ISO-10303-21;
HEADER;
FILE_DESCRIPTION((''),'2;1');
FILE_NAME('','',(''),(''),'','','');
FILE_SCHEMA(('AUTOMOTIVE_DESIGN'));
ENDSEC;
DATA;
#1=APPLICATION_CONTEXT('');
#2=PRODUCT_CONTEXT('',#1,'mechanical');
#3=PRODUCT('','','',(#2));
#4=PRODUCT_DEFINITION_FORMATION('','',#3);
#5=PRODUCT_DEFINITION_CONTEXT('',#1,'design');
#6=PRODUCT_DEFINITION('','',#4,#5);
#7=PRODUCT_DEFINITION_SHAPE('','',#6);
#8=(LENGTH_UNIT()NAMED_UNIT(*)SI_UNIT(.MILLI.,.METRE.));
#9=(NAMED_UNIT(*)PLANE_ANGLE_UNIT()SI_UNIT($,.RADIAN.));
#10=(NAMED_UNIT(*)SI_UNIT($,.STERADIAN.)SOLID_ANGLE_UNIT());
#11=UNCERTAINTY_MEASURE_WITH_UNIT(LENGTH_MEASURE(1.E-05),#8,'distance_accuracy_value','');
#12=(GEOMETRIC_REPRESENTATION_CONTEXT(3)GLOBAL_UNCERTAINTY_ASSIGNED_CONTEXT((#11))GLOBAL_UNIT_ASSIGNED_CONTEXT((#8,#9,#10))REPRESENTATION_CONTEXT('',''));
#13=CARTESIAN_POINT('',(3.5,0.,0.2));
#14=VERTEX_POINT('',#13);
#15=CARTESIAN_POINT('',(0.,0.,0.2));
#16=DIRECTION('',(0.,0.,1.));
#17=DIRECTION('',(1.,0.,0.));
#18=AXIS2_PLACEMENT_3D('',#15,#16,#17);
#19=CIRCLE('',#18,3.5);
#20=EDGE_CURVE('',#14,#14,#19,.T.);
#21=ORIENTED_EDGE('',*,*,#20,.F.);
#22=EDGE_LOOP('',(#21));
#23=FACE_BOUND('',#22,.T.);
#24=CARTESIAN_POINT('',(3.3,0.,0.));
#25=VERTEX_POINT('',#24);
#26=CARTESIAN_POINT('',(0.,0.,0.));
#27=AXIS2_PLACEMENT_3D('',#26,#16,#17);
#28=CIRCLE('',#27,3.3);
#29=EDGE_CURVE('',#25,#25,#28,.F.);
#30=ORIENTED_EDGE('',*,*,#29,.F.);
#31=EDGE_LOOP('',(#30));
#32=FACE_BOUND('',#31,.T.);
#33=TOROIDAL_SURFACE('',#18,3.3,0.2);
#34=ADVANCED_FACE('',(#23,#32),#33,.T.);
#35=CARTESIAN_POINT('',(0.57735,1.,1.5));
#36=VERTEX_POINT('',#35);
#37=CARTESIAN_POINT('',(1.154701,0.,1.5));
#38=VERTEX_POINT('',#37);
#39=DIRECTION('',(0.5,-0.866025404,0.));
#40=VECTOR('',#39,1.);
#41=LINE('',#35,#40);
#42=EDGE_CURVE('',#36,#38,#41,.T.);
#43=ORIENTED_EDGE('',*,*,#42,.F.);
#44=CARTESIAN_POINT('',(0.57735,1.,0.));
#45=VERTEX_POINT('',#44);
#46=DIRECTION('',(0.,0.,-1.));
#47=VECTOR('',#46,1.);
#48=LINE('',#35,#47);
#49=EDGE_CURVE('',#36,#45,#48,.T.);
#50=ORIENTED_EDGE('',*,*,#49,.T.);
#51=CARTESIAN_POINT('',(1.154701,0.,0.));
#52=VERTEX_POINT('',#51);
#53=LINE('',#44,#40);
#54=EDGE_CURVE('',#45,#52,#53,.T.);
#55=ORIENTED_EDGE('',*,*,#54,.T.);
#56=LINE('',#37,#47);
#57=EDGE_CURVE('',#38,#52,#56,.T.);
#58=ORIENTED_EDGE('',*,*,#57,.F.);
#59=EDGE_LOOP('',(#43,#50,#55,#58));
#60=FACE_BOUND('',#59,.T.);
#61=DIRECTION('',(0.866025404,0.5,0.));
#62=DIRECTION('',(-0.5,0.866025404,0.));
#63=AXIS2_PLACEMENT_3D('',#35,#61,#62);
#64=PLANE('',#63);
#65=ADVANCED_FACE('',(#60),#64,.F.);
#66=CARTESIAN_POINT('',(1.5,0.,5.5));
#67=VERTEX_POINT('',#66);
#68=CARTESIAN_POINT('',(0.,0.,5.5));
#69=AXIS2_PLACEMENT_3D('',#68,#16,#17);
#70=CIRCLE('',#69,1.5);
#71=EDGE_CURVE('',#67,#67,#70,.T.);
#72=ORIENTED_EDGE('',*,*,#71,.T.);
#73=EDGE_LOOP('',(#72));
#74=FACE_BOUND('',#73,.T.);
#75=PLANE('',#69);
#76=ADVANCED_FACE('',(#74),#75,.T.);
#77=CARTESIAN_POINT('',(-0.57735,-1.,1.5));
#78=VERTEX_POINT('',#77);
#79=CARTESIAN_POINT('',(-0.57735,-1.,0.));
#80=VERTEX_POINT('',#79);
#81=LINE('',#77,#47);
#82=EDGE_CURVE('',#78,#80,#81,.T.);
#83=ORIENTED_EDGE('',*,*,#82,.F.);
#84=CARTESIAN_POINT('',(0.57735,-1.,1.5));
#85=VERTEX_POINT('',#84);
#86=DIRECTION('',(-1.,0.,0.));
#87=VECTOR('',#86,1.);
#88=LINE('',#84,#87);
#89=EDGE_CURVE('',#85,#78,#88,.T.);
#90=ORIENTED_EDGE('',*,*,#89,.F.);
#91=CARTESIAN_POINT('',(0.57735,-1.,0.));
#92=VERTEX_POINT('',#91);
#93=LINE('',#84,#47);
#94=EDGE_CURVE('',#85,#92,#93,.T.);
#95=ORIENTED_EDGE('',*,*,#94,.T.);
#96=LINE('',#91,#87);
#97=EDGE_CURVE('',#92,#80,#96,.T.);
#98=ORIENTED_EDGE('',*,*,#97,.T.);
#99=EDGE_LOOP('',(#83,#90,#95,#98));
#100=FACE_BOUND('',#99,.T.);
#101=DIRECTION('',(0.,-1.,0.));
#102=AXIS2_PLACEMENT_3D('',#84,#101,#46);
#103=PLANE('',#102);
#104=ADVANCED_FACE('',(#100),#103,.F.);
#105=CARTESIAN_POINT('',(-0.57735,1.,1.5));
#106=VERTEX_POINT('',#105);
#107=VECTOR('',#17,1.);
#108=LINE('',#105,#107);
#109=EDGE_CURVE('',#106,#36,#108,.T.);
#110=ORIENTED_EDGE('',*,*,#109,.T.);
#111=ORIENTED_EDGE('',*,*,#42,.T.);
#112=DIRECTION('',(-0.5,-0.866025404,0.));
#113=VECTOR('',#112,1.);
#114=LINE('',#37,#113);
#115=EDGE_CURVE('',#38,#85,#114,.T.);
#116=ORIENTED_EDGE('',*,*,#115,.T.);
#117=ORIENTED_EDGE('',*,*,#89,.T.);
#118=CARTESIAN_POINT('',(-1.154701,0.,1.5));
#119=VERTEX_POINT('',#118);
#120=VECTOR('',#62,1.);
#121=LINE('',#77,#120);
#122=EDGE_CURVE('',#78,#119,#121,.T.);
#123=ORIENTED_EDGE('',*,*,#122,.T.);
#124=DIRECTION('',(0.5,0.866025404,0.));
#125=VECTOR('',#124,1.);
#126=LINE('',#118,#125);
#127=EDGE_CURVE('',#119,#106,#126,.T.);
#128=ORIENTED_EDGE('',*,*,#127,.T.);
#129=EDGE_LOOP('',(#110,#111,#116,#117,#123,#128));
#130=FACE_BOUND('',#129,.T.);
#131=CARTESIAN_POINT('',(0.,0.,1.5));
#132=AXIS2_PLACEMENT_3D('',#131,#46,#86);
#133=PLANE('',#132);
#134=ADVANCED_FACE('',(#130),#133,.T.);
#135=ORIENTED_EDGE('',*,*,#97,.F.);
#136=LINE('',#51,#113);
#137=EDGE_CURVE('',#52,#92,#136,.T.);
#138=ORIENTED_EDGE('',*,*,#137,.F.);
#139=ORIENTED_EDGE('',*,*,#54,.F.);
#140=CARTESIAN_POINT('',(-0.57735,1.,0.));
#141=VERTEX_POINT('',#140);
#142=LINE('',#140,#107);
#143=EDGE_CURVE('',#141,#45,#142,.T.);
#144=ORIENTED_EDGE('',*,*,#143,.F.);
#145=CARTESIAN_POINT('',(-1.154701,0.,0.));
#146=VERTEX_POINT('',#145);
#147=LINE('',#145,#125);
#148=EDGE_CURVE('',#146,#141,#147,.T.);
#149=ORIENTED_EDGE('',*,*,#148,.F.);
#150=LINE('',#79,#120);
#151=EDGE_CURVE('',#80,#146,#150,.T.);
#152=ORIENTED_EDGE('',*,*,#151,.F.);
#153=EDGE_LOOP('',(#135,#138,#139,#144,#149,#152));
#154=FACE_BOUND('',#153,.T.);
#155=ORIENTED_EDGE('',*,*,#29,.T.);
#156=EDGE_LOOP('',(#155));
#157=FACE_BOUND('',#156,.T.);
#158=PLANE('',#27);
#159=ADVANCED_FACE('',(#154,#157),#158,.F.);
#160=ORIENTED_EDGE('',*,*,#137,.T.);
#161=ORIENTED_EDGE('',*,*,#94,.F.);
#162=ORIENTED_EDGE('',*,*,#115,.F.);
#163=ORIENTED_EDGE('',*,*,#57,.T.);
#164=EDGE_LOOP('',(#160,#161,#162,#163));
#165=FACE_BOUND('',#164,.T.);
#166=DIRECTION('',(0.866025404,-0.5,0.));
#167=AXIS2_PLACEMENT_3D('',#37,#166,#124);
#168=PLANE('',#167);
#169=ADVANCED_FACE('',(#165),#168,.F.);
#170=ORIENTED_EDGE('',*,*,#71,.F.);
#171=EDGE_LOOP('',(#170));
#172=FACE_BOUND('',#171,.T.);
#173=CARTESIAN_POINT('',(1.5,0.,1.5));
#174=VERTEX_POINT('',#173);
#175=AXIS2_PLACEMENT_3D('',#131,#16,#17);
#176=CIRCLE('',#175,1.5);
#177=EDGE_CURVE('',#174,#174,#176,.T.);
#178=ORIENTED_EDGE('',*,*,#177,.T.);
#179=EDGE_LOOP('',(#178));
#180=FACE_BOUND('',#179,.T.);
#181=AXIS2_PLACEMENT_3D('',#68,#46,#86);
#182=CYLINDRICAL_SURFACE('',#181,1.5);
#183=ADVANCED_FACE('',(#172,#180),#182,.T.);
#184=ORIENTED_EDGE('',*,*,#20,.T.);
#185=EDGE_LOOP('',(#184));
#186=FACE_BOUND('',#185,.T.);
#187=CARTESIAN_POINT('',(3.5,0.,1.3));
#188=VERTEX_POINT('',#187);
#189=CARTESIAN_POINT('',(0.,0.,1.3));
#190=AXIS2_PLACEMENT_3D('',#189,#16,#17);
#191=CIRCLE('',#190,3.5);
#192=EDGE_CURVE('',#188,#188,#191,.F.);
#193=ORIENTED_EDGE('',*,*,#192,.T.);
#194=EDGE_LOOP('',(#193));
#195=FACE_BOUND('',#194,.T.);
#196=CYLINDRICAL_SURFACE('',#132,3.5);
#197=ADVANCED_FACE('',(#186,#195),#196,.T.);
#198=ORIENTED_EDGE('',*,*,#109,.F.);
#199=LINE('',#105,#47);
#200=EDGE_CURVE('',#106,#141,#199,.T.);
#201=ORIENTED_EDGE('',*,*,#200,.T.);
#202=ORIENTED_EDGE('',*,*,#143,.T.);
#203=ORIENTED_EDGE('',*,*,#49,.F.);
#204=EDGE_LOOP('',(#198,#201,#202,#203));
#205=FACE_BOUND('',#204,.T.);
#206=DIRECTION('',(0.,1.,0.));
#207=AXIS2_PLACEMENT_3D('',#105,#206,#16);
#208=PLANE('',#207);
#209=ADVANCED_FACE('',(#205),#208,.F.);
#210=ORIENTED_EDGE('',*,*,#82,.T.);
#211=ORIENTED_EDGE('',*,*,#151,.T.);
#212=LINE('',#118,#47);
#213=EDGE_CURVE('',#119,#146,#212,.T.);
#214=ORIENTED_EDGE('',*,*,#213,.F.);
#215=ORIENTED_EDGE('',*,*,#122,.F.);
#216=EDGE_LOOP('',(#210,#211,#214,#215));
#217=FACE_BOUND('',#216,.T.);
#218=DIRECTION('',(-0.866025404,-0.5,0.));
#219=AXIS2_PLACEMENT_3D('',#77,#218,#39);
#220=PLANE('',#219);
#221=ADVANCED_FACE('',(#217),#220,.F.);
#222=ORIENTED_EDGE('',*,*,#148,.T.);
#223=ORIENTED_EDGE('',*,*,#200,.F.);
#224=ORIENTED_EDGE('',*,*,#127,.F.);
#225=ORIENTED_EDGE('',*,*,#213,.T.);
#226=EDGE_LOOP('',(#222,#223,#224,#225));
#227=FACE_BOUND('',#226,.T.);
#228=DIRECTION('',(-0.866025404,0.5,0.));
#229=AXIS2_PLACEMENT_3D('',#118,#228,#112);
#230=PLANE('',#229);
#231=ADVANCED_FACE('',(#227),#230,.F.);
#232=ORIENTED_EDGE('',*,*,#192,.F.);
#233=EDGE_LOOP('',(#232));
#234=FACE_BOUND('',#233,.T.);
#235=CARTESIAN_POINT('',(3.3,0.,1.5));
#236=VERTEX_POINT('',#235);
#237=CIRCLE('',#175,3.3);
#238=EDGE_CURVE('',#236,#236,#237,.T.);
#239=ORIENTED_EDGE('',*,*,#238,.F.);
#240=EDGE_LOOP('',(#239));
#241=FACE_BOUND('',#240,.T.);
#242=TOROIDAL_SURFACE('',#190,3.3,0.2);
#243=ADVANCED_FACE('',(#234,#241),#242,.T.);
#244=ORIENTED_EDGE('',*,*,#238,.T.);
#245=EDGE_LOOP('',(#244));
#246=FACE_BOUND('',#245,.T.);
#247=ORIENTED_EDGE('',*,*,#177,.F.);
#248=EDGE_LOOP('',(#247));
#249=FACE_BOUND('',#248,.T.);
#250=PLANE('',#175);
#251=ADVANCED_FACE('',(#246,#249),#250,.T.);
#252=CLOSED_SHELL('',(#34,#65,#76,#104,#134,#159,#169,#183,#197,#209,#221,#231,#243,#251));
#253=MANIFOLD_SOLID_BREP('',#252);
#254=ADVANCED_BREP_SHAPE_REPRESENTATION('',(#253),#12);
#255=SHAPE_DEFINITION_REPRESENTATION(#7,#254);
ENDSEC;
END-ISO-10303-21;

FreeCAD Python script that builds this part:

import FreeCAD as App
import Part
import Sketcher

V = App.Vector
Q = App.Units.Quantity


def edges_at(feature, points):
    """Names of the edges that pass closest to the given points."""
    edges = feature.Shape.Edges
    near = lambda p: min(range(len(edges)), key=lambda i: edges[i].distToShape(Part.Vertex(*p))[0])
    return sorted({f"Edge{near(p) + 1}" for p in points})


def add_polygon(sketch, points):
    """Adds a closed chain of lines whose ends are joined by coincident constraints."""
    first, n = sketch.GeometryCount, len(points)
    for a, b in zip(points, points[1:] + points[:1]):
        sketch.addGeometry(Part.LineSegment(App.Vector(*a, 0), App.Vector(*b, 0)), False)
    for i in range(n):
        sketch.addConstraint(Sketcher.Constraint("Coincident", first + i, 2, first + (i + 1) % n, 1))

doc = App.newDocument("Part")
body = doc.addObject("PartDesign::Body", "Body")

# Sketch on XY plane
sketch1 = body.newObject("Sketcher::SketchObject", "Sketch")
sketch1.AttachmentSupport = (doc.getObject("XY_Plane"), [""])
sketch1.MapMode = "FlatFace"
sketch1.addGeometry(Part.Circle(V(0, 0, 0), V(0, 0, 1), 3.5), False)
sketch1.addConstraint([
    Sketcher.Constraint("Coincident", 0, 3, -1, 1),
    Sketcher.Constraint("Diameter", 0, Q("7 mm")),
])
pad1 = body.newObject("PartDesign::Pad", "Pad")
pad1.Profile = sketch1
pad1.Length = 1.5

# Sketch on XY plane
sketch2 = body.newObject("Sketcher::SketchObject", "Sketch001")
sketch2.AttachmentSupport = (doc.getObject("XY_Plane"), [""])
sketch2.MapMode = "FlatFace"
sketch2.AttachmentOffset = App.Placement(V(0, 0, 1.5), App.Rotation())
sketch2.addGeometry(Part.Circle(V(0, 0, 0), V(0, 0, 1), 1.5), False)
sketch2.addConstraint([
    Sketcher.Constraint("Coincident", 0, 3, -1, 1),
    Sketcher.Constraint("Diameter", 0, Q("3 mm")),
])
pad2 = body.newObject("PartDesign::Pad", "Pad001")
pad2.Profile = sketch2
pad2.Length = 4
doc.recompute()

fillet = body.newObject("PartDesign::Fillet", "Fillet")
fillet.Base = (pad2, edges_at(pad2, [(-3.5, 0, 0), (-3.5, 0, 1.5)]))
fillet.Radius = 0.2

# Sketch on XY plane
sketch3 = body.newObject("Sketcher::SketchObject", "Sketch002")
sketch3.AttachmentSupport = (doc.getObject("XY_Plane"), [""])
sketch3.MapMode = "FlatFace"
add_polygon(sketch3, [(-1.154701, 0), (-0.57735, 1), (0.57735, 1), (1.154701, 0), (0.57735, -1), (-0.57735, -1)])  # lines 0-5
sketch3.addConstraint([
    Sketcher.Constraint("Horizontal", 1),
    Sketcher.Constraint("Horizontal", 4),
    Sketcher.Constraint("Symmetric", 0, 2, 3, 2, -1, 1),
    Sketcher.Constraint("Symmetric", 2, 2, 5, 2, -1, 1),
    Sketcher.Constraint("PointOnObject", 2, 2, -1),
    Sketcher.Constraint("Parallel", 2, 5),
    Sketcher.Constraint("Vertical", 1, 2, 3, 2),
    Sketcher.Constraint("Angle", 0, Q("60 deg")),
    Sketcher.Constraint("DistanceY", -1, 1, 0, 2, Q("1 mm")),
    Sketcher.Constraint("DistanceX", 1, 1, 1, 2, Q("1.154701 mm")),
])
pocket1 = body.newObject("PartDesign::Pocket", "Pocket")
pocket1.Profile = sketch3
pocket1.Length = 1.5
pocket1.Reversed = True

doc.recompute()
